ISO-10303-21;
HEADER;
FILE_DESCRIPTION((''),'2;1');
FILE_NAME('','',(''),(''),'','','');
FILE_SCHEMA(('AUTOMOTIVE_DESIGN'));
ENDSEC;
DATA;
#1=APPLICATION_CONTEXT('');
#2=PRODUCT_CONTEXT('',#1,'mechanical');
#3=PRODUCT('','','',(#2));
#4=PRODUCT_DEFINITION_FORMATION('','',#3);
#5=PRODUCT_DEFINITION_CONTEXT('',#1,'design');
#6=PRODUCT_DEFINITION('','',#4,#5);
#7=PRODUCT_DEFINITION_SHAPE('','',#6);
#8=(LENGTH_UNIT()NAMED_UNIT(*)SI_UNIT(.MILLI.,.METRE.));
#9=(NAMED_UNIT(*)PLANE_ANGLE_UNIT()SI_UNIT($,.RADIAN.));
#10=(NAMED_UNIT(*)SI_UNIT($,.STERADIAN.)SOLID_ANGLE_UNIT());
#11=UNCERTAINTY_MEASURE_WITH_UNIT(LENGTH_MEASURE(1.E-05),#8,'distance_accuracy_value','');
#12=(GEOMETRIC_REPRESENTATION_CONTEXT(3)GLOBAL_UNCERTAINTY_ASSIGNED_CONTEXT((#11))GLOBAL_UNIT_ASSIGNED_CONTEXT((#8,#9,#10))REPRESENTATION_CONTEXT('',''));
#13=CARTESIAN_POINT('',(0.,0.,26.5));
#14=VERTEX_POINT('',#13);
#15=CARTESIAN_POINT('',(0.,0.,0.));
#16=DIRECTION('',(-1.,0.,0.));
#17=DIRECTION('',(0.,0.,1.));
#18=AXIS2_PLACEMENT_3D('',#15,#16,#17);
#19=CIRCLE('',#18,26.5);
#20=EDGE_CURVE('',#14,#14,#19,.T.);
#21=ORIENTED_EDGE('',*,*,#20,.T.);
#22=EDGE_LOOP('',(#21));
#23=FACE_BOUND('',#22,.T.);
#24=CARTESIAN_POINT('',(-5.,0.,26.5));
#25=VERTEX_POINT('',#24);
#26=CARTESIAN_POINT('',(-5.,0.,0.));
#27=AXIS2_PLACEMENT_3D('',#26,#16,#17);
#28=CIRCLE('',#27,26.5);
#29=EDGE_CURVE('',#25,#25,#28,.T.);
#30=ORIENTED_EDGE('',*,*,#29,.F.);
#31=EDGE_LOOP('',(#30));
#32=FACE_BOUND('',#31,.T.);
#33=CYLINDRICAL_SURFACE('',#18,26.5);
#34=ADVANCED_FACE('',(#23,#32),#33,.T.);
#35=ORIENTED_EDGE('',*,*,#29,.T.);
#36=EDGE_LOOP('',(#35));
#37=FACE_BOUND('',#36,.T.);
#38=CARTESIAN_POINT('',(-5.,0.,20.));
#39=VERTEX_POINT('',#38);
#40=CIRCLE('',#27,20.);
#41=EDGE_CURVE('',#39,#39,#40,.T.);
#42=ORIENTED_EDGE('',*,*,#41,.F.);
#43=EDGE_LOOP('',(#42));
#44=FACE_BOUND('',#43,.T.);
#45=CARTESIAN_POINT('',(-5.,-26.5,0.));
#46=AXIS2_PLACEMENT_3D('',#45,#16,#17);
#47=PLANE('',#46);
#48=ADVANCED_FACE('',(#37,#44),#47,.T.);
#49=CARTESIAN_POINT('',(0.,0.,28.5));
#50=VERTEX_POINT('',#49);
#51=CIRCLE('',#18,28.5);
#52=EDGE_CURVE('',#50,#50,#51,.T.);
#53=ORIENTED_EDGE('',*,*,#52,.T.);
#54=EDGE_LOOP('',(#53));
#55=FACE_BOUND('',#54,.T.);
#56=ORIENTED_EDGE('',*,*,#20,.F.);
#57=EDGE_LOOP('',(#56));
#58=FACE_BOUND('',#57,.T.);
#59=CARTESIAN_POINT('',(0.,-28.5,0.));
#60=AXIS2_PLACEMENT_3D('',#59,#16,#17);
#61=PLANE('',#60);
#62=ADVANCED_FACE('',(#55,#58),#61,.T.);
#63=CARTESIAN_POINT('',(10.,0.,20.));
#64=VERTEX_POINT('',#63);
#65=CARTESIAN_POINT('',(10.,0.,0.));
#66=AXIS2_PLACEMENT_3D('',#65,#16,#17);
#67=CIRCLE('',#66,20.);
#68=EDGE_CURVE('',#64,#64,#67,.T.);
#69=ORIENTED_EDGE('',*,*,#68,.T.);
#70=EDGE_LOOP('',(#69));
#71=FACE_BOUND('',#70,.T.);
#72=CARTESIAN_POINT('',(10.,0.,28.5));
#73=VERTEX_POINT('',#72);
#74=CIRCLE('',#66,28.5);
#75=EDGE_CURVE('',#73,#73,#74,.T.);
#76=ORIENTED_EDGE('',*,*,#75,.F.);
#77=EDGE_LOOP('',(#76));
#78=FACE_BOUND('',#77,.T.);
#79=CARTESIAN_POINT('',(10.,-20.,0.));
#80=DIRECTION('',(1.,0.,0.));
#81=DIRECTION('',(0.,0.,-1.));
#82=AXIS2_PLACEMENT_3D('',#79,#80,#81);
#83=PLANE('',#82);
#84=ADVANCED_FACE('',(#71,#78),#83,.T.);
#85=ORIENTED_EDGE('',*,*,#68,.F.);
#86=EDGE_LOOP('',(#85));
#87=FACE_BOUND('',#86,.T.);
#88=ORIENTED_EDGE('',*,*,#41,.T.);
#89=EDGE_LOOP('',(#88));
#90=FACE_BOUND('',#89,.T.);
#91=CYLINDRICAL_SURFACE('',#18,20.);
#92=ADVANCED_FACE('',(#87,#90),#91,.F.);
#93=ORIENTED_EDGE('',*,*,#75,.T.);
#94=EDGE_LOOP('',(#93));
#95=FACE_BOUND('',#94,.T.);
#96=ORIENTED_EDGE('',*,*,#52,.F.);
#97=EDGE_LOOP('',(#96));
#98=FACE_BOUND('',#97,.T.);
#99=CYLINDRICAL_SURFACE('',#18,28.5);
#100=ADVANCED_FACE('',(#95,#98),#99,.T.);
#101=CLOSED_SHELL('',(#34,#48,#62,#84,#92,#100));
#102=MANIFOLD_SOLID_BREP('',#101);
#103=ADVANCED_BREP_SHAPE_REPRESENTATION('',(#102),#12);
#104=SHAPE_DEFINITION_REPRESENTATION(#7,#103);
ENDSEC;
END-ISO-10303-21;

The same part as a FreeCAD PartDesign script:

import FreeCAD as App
import Part
import Sketcher
from FreeCAD import Vector

doc = App.newDocument("Part")
body = doc.addObject("PartDesign::Body", "Body")

sketch1 = body.newObject("Sketcher::SketchObject", "Sketch")
sketch1.AttachmentSupport = (doc.getObject("XY_Plane"), [""])
sketch1.MapMode = "FlatFace"
sketch1.addGeometry([
    Part.LineSegment(Vector(10, -28.5, 0), Vector(10, -20, 0)),
    Part.LineSegment(Vector(10, -20, 0), Vector(-5, -20, 0)),
    Part.LineSegment(Vector(-5, -20, 0), Vector(-5, -26.5, 0)),
    Part.LineSegment(Vector(-5, -26.5, 0), Vector(0, -26.5, 0)),
    Part.LineSegment(Vector(0, -26.5, 0), Vector(0, -28.5, 0)),
    Part.LineSegment(Vector(0, -28.5, 0), Vector(10, -28.5, 0)),
], False)
sketch1.addConstraint([
    Sketcher.Constraint("Coincident", 0, 2, 1, 1),
    Sketcher.Constraint("Coincident", 1, 2, 2, 1),
    Sketcher.Constraint("Coincident", 2, 2, 3, 1),
    Sketcher.Constraint("Coincident", 3, 2, 4, 1),
    Sketcher.Constraint("Coincident", 4, 2, 5, 1),
    Sketcher.Constraint("Coincident", 5, 2, 0, 1),
    Sketcher.Constraint("Vertical", 0),
    Sketcher.Constraint("Horizontal", 1),
    Sketcher.Constraint("Vertical", 2),
    Sketcher.Constraint("Horizontal", 3),
    Sketcher.Constraint("Vertical", 4),
    Sketcher.Constraint("Horizontal", 5),
    Sketcher.Constraint("PointOnObject", 3, 2, -2),
    Sketcher.Constraint("DistanceX", 1, 2, 1, 1, 15.0),
    Sketcher.Constraint("DistanceX", 3, 1, 3, 2, 5.0),
    Sketcher.Constraint("DistanceY", 4, 2, 4, 1, 2.0),
    Sketcher.Constraint("DistanceY", 0, 1, 0, 2, 8.5),
    Sketcher.Constraint("DistanceY", 0, 2, -1, 1, 20.0),
])
revolution = body.newObject("PartDesign::Revolution", "Revolution")
revolution.Profile = sketch1
revolution.ReferenceAxis = (sketch1, ["H_Axis"])
revolution.Angle = 360

doc.recompute()
